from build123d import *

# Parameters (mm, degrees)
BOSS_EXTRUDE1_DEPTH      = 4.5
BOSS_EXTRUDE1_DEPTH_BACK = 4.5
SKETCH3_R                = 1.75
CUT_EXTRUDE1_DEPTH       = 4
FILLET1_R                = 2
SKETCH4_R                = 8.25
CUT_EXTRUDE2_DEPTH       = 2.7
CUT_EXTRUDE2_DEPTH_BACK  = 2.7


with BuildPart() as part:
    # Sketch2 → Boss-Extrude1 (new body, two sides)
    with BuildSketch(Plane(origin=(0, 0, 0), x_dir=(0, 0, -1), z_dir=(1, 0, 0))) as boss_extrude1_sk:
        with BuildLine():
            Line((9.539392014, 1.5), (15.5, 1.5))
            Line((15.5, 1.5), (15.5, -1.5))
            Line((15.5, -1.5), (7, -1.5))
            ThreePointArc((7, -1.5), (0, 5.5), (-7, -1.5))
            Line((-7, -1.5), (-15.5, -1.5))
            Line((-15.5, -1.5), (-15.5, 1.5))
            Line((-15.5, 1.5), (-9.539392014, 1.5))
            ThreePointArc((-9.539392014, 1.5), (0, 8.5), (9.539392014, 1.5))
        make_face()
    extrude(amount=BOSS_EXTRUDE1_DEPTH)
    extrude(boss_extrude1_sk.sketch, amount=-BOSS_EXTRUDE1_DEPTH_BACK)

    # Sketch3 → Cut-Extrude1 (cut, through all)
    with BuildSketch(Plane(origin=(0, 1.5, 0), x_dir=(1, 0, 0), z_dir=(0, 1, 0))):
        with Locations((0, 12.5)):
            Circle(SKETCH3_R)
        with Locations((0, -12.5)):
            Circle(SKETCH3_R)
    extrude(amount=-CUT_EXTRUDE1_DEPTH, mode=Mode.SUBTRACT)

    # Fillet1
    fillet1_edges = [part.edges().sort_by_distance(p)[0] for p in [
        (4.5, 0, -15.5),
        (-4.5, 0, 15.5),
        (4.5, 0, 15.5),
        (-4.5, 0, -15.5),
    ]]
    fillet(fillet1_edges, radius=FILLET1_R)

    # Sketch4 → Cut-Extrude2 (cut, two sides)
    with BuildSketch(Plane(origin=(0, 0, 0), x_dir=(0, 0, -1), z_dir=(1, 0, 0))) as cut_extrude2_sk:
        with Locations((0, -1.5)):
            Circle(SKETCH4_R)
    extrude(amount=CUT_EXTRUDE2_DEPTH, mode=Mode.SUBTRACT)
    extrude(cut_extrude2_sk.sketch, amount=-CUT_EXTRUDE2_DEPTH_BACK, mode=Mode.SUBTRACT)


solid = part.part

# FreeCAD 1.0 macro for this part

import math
import FreeCAD as App
import Part
import Sketcher
from FreeCAD import Vector


def edges_at(feature, points):
    """Names of the edges that pass closest to the given points."""
    edges = feature.Shape.Edges
    near = lambda p: min(range(len(edges)), key=lambda i: edges[i].distToShape(Part.Vertex(*p))[0])
    return sorted({f"Edge{near(p) + 1}" for p in points})

doc = App.newDocument("Part")
body = doc.addObject("PartDesign::Body", "Body")

# Sketch on YZ plane
sketch1 = doc.addObject("Sketcher::SketchObject", "Sketch")
body.addObject(sketch1)
sketch1.AttachmentSupport = (doc.YZ_Plane, [""])
sketch1.MapMode = "FlatFace"
sketch1.addGeometry(Part.LineSegment(Vector(1.5, -15.5, 0), Vector(1.5, -9.5, 0)), False)
sketch1.addGeometry(Part.ArcOfCircle(Part.Circle(Vector(-1.5, 0, 0), Vector(0, 0, 1), 10), math.radians(-73), math.radians(73)), False)
sketch1.addGeometry(Part.LineSegment(Vector(1.5, 9.5, 0), Vector(1.5, 15.5, 0)), False)
sketch1.addGeometry(Part.LineSegment(Vector(1.5, 15.5, 0), Vector(-1.5, 15.5, 0)), False)
sketch1.addGeometry(Part.LineSegment(Vector(-1.5, 15.5, 0), Vector(-1.5, 7, 0)), False)
sketch1.addGeometry(Part.ArcOfCircle(Part.Circle(Vector(-1.5, 0, 0), Vector(0, 0, 1), 7), math.radians(-90), math.radians(90)), False)
sketch1.addGeometry(Part.LineSegment(Vector(-1.5, -7, 0), Vector(-1.5, -15.5, 0)), False)
sketch1.addGeometry(Part.LineSegment(Vector(-1.5, -15.5, 0), Vector(1.5, -15.5, 0)), False)
sketch1.addConstraint(Sketcher.Constraint("Coincident", 0, 2, 1, 1))
sketch1.addConstraint(Sketcher.Constraint("Coincident", 1, 2, 2, 1))
sketch1.addConstraint(Sketcher.Constraint("Coincident", 2, 2, 3, 1))
sketch1.addConstraint(Sketcher.Constraint("Coincident", 3, 2, 4, 1))
sketch1.addConstraint(Sketcher.Constraint("Coincident", 4, 2, 5, 2))
sketch1.addConstraint(Sketcher.Constraint("Coincident", 5, 1, 6, 1))
sketch1.addConstraint(Sketcher.Constraint("Coincident", 6, 2, 7, 1))
sketch1.addConstraint(Sketcher.Constraint("Coincident", 7, 2, 0, 1))
sketch1.addConstraint(Sketcher.Constraint("Vertical", 0))
sketch1.addConstraint(Sketcher.Constraint("Vertical", 2))
sketch1.addConstraint(Sketcher.Constraint("Horizontal", 3))
sketch1.addConstraint(Sketcher.Constraint("Vertical", 4))
sketch1.addConstraint(Sketcher.Constraint("Vertical", 6))
sketch1.addConstraint(Sketcher.Constraint("Horizontal", 7))
sketch1.addConstraint(Sketcher.Constraint("Coincident", 5, 3, 1, 3))
sketch1.addConstraint(Sketcher.Constraint("Symmetric", 2, 2, 6, 2, -1, 1))
sketch1.addConstraint(Sketcher.Constraint("Symmetric", 0, 2, 1, 2, -1))
sketch1.addConstraint(Sketcher.Constraint("Vertical", 5, 3, 3, 2))
sketch1.addConstraint(Sketcher.Constraint("Vertical", 4, 2, 5, 1))
sketch1.addConstraint(Sketcher.Constraint("Radius", 1, 10.0))
sketch1.addConstraint(Sketcher.Constraint("Radius", 5, 7.0))
sketch1.addConstraint(Sketcher.Constraint("DistanceX", 3, 2, 3, 1, 3.0))
sketch1.addConstraint(Sketcher.Constraint("DistanceY", 4, 2, 4, 1, 8.5))
pad1 = doc.addObject("PartDesign::Pad", "Pad")
body.addObject(pad1)
pad1.Profile = sketch1
pad1.Type = "TwoLengths"
pad1.Length = 4.5
pad1.Length2 = 4.5

# Sketch on XZ plane
sketch2 = doc.addObject("Sketcher::SketchObject", "Sketch001")
body.addObject(sketch2)
sketch2.AttachmentSupport = (doc.XZ_Plane, [""])
sketch2.MapMode = "FlatFace"
sketch2.AttachmentOffset = App.Placement(Vector(0, 0, -1.5), App.Rotation())
sketch2.addGeometry(Part.Circle(Vector(0, -12.5, 0), Vector(0, 0, 1), 1.8), False)
sketch2.addGeometry(Part.Circle(Vector(0, 12.5, 0), Vector(0, 0, 1), 1.8), False)
sketch2.addConstraint(Sketcher.Constraint("Equal", 0, 1))
sketch2.addConstraint(Sketcher.Constraint("Symmetric", 0, 3, 1, 3, -1, 1))
sketch2.addConstraint(Sketcher.Constraint("PointOnObject", 0, 3, -2))
sketch2.addConstraint(Sketcher.Constraint("Diameter", 0, 3.5))
sketch2.addConstraint(Sketcher.Constraint("DistanceY", 0, 3, 1, 3, 25.0))
pocket1 = doc.addObject("PartDesign::Pocket", "Pocket")
body.addObject(pocket1)
pocket1.Profile = sketch2
pocket1.Type = "ThroughAll"
pocket1.Reversed = True
doc.recompute()

fillet = doc.addObject("PartDesign::Fillet", "Fillet")
body.addObject(fillet)
fillet.Base = (pocket1, edges_at(pocket1, [
    (4.5, 0, -15.5),
    (-4.5, 0, 15.5),
    (4.5, 0, 15.5),
    (-4.5, 0, -15.5),
]))
fillet.Radius = 2

# Sketch on YZ plane
sketch3 = doc.addObject("Sketcher::SketchObject", "Sketch002")
body.addObject(sketch3)
sketch3.AttachmentSupport = (doc.YZ_Plane, [""])
sketch3.MapMode = "FlatFace"
sketch3.addGeometry(Part.Circle(Vector(-2, 0, 0), Vector(0, 0, 1), 8), False)
sketch3.addConstraint(Sketcher.Constraint("PointOnObject", 0, 3, -1))
sketch3.addConstraint(Sketcher.Constraint("Diameter", 0, 16.5))
sketch3.addConstraint(Sketcher.Constraint("DistanceX", 0, 3, -1, 1, 1.5))
pocket2 = doc.addObject("PartDesign::Pocket", "Pocket001")
body.addObject(pocket2)
pocket2.Profile = sketch3
pocket2.Type = "TwoLengths"
pocket2.Length = 2.7
pocket2.Length2 = 2.7
pocket2.Reversed = True

doc.recompute()
